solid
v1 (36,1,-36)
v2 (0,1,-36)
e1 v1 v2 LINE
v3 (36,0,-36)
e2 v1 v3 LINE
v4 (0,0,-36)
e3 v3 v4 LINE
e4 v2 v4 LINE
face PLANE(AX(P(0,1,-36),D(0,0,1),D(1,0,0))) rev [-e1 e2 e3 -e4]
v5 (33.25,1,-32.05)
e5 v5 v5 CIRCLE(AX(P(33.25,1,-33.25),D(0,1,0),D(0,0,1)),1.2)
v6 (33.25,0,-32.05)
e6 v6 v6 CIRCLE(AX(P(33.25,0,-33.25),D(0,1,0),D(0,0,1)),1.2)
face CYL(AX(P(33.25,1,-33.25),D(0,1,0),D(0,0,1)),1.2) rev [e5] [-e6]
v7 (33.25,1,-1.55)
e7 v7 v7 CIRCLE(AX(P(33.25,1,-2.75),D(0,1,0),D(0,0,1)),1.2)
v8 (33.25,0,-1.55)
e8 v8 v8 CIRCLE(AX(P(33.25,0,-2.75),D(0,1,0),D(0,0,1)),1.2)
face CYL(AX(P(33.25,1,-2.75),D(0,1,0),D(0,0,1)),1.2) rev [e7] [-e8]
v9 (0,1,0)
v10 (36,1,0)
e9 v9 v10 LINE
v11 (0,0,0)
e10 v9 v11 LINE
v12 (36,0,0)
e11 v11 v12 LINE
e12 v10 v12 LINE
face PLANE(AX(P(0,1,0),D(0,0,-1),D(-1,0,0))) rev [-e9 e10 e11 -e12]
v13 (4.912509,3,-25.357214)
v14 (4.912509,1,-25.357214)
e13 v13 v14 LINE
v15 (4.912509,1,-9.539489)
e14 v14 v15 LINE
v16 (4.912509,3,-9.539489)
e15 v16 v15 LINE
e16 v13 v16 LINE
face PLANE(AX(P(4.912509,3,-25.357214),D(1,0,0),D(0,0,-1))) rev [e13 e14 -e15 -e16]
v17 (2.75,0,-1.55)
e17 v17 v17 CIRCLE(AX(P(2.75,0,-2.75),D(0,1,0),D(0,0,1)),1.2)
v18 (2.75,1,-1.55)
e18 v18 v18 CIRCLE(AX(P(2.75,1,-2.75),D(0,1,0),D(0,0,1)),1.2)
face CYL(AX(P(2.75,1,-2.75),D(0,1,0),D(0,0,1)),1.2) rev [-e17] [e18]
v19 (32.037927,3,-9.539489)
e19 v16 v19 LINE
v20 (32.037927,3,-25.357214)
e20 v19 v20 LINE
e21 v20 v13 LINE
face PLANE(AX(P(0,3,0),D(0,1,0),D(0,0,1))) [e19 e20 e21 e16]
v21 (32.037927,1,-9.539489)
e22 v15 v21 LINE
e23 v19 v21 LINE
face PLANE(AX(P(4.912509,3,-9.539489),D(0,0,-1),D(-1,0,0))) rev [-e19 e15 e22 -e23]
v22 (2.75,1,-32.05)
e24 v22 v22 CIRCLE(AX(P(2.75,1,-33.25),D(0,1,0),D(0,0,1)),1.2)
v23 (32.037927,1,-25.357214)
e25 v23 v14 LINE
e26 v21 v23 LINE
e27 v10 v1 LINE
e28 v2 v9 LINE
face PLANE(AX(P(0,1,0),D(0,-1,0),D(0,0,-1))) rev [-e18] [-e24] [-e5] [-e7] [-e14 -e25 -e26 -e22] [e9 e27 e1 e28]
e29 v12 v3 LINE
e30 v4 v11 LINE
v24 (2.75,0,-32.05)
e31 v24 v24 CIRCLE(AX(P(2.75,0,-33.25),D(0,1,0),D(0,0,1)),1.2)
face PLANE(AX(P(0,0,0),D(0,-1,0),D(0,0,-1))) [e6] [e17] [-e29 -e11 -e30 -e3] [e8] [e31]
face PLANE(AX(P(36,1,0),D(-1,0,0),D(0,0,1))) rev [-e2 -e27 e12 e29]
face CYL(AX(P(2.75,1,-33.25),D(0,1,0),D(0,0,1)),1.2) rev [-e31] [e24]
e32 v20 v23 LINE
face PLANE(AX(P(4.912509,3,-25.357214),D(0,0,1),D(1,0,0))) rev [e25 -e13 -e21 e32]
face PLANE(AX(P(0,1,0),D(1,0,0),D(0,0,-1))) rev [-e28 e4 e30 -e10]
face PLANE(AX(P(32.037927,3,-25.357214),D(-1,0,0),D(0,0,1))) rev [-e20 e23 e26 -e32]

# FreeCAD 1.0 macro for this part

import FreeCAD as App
import Part
import Sketcher
Q = App.Units.Quantity


def add_polygon(sketch, points):
    """Adds a closed chain of lines whose ends are joined by coincident constraints."""
    first, n = sketch.GeometryCount, len(points)
    for a, b in zip(points, points[1:] + points[:1]):
        sketch.addGeometry(Part.LineSegment(App.Vector(*a, 0), App.Vector(*b, 0)), False)
    for i in range(n):
        sketch.addConstraint(Sketcher.Constraint("Coincident", first + i, 2, first + (i + 1) % n, 1))

doc = App.newDocument("Part")
body = doc.addObject("PartDesign::Body", "Body")

# Sketch on XZ plane
sketch1 = doc.addObject("Sketcher::SketchObject", "Sketch")
body.addObject(sketch1)
sketch1.AttachmentSupport = (doc.XZ_Plane, [""])
sketch1.MapMode = "FlatFace"
add_polygon(sketch1, [(0, -36), (0, 0), (36, 0), (36, -36)])  # lines 0-3
sketch1.addConstraint(Sketcher.Constraint("Vertical", 0))
sketch1.addConstraint(Sketcher.Constraint("Horizontal", 1))
sketch1.addConstraint(Sketcher.Constraint("Vertical", 2))
sketch1.addConstraint(Sketcher.Constraint("Horizontal", 3))
sketch1.addConstraint(Sketcher.Constraint("Coincident", 0, 2, -1, 1))
sketch1.addConstraint(Sketcher.Constraint("Equal", 3, 0))
sketch1.addConstraint(Sketcher.Constraint("DistanceX", 1, 1, 1, 2, Q("36 mm")))
pad1 = doc.addObject("PartDesign::Pad", "Pad")
body.addObject(pad1)
pad1.Profile = sketch1
pad1.Length = 1
pad1.Reversed = True

# Sketch on XZ plane
sketch2 = doc.addObject("Sketcher::SketchObject", "Sketch001")
body.addObject(sketch2)
sketch2.AttachmentSupport = (doc.XZ_Plane, [""])
sketch2.MapMode = "FlatFace"
sketch2.AttachmentOffset = App.Placement(App.Vector(0, 0, -1), App.Rotation())
sketch2.addGeometry(Part.Circle(App.Vector(2.75, -2.75, 0), App.Vector(0, 0, 1), 1.2), False)
sketch2.addGeometry(Part.Circle(App.Vector(2.75, -33.25, 0), App.Vector(0, 0, 1), 1.2), False)
sketch2.addGeometry(Part.Circle(App.Vector(33.25, -33.25, 0), App.Vector(0, 0, 1), 1.2), False)
sketch2.addGeometry(Part.Circle(App.Vector(33.25, -2.75, 0), App.Vector(0, 0, 1), 1.2), False)
sketch2.addConstraint(Sketcher.Constraint("Equal", 0, 1))
sketch2.addConstraint(Sketcher.Constraint("Equal", 1, 2))
sketch2.addConstraint(Sketcher.Constraint("Equal", 2, 3))
sketch2.addConstraint(Sketcher.Constraint("Horizontal", 1, 3, 2, 3))
sketch2.addConstraint(Sketcher.Constraint("Horizontal", 0, 3, 3, 3))
sketch2.addConstraint(Sketcher.Constraint("Vertical", 0, 3, 1, 3))
sketch2.addConstraint(Sketcher.Constraint("Vertical", 2, 3, 3, 3))
sketch2.addConstraint(Sketcher.Constraint("Diameter", 0, Q("2.4 mm")))
sketch2.addConstraint(Sketcher.Constraint("DistanceY", 1, 3, 0, 3, Q("30.5 mm")))
sketch2.addConstraint(Sketcher.Constraint("DistanceX", 1, 3, 2, 3, Q("30.5 mm")))
sketch2.addConstraint(Sketcher.Constraint("DistanceX", -1, 1, 0, 3, Q("2.75 mm")))
sketch2.addConstraint(Sketcher.Constraint("DistanceY", 0, 3, -1, 1, Q("2.75 mm")))
doc.recompute()
hole = doc.addObject("PartDesign::Hole", "Hole")
body.addObject(hole)
hole.Profile = sketch2
hole.ThreadType = "None"
hole.Diameter = 2.4
hole.DepthType = "ThroughAll"
hole.Reversed = True

# Sketch on XZ plane
sketch3 = doc.addObject("Sketcher::SketchObject", "Sketch002")
body.addObject(sketch3)
sketch3.AttachmentSupport = (doc.XZ_Plane, [""])
sketch3.MapMode = "FlatFace"
sketch3.AttachmentOffset = App.Placement(App.Vector(0, 0, -1), App.Rotation())
add_polygon(sketch3, [(4.912509, -25.357214), (4.912509, -9.539489), (32.037927, -9.539489), (32.037927, -25.357214)])  # lines 0-3
sketch3.addConstraint(Sketcher.Constraint("Vertical", 0))
sketch3.addConstraint(Sketcher.Constraint("Horizontal", 1))
sketch3.addConstraint(Sketcher.Constraint("Vertical", 2))
sketch3.addConstraint(Sketcher.Constraint("Horizontal", 3))
sketch3.addConstraint(Sketcher.Constraint("DistanceX", 1, 1, 1, 2, Q("27.125418 mm")))
sketch3.addConstraint(Sketcher.Constraint("DistanceY", 0, 1, 0, 2, Q("15.817725 mm")))
sketch3.addConstraint(Sketcher.Constraint("DistanceX", -1, 1, 0, 2, Q("4.912509 mm")))
sketch3.addConstraint(Sketcher.Constraint("DistanceY", 0, 2, -1, 1, Q("9.539489 mm")))
pad2 = doc.addObject("PartDesign::Pad", "Pad001")
body.addObject(pad2)
pad2.Profile = sketch3
pad2.Length = 2
pad2.Reversed = True

doc.recompute()
